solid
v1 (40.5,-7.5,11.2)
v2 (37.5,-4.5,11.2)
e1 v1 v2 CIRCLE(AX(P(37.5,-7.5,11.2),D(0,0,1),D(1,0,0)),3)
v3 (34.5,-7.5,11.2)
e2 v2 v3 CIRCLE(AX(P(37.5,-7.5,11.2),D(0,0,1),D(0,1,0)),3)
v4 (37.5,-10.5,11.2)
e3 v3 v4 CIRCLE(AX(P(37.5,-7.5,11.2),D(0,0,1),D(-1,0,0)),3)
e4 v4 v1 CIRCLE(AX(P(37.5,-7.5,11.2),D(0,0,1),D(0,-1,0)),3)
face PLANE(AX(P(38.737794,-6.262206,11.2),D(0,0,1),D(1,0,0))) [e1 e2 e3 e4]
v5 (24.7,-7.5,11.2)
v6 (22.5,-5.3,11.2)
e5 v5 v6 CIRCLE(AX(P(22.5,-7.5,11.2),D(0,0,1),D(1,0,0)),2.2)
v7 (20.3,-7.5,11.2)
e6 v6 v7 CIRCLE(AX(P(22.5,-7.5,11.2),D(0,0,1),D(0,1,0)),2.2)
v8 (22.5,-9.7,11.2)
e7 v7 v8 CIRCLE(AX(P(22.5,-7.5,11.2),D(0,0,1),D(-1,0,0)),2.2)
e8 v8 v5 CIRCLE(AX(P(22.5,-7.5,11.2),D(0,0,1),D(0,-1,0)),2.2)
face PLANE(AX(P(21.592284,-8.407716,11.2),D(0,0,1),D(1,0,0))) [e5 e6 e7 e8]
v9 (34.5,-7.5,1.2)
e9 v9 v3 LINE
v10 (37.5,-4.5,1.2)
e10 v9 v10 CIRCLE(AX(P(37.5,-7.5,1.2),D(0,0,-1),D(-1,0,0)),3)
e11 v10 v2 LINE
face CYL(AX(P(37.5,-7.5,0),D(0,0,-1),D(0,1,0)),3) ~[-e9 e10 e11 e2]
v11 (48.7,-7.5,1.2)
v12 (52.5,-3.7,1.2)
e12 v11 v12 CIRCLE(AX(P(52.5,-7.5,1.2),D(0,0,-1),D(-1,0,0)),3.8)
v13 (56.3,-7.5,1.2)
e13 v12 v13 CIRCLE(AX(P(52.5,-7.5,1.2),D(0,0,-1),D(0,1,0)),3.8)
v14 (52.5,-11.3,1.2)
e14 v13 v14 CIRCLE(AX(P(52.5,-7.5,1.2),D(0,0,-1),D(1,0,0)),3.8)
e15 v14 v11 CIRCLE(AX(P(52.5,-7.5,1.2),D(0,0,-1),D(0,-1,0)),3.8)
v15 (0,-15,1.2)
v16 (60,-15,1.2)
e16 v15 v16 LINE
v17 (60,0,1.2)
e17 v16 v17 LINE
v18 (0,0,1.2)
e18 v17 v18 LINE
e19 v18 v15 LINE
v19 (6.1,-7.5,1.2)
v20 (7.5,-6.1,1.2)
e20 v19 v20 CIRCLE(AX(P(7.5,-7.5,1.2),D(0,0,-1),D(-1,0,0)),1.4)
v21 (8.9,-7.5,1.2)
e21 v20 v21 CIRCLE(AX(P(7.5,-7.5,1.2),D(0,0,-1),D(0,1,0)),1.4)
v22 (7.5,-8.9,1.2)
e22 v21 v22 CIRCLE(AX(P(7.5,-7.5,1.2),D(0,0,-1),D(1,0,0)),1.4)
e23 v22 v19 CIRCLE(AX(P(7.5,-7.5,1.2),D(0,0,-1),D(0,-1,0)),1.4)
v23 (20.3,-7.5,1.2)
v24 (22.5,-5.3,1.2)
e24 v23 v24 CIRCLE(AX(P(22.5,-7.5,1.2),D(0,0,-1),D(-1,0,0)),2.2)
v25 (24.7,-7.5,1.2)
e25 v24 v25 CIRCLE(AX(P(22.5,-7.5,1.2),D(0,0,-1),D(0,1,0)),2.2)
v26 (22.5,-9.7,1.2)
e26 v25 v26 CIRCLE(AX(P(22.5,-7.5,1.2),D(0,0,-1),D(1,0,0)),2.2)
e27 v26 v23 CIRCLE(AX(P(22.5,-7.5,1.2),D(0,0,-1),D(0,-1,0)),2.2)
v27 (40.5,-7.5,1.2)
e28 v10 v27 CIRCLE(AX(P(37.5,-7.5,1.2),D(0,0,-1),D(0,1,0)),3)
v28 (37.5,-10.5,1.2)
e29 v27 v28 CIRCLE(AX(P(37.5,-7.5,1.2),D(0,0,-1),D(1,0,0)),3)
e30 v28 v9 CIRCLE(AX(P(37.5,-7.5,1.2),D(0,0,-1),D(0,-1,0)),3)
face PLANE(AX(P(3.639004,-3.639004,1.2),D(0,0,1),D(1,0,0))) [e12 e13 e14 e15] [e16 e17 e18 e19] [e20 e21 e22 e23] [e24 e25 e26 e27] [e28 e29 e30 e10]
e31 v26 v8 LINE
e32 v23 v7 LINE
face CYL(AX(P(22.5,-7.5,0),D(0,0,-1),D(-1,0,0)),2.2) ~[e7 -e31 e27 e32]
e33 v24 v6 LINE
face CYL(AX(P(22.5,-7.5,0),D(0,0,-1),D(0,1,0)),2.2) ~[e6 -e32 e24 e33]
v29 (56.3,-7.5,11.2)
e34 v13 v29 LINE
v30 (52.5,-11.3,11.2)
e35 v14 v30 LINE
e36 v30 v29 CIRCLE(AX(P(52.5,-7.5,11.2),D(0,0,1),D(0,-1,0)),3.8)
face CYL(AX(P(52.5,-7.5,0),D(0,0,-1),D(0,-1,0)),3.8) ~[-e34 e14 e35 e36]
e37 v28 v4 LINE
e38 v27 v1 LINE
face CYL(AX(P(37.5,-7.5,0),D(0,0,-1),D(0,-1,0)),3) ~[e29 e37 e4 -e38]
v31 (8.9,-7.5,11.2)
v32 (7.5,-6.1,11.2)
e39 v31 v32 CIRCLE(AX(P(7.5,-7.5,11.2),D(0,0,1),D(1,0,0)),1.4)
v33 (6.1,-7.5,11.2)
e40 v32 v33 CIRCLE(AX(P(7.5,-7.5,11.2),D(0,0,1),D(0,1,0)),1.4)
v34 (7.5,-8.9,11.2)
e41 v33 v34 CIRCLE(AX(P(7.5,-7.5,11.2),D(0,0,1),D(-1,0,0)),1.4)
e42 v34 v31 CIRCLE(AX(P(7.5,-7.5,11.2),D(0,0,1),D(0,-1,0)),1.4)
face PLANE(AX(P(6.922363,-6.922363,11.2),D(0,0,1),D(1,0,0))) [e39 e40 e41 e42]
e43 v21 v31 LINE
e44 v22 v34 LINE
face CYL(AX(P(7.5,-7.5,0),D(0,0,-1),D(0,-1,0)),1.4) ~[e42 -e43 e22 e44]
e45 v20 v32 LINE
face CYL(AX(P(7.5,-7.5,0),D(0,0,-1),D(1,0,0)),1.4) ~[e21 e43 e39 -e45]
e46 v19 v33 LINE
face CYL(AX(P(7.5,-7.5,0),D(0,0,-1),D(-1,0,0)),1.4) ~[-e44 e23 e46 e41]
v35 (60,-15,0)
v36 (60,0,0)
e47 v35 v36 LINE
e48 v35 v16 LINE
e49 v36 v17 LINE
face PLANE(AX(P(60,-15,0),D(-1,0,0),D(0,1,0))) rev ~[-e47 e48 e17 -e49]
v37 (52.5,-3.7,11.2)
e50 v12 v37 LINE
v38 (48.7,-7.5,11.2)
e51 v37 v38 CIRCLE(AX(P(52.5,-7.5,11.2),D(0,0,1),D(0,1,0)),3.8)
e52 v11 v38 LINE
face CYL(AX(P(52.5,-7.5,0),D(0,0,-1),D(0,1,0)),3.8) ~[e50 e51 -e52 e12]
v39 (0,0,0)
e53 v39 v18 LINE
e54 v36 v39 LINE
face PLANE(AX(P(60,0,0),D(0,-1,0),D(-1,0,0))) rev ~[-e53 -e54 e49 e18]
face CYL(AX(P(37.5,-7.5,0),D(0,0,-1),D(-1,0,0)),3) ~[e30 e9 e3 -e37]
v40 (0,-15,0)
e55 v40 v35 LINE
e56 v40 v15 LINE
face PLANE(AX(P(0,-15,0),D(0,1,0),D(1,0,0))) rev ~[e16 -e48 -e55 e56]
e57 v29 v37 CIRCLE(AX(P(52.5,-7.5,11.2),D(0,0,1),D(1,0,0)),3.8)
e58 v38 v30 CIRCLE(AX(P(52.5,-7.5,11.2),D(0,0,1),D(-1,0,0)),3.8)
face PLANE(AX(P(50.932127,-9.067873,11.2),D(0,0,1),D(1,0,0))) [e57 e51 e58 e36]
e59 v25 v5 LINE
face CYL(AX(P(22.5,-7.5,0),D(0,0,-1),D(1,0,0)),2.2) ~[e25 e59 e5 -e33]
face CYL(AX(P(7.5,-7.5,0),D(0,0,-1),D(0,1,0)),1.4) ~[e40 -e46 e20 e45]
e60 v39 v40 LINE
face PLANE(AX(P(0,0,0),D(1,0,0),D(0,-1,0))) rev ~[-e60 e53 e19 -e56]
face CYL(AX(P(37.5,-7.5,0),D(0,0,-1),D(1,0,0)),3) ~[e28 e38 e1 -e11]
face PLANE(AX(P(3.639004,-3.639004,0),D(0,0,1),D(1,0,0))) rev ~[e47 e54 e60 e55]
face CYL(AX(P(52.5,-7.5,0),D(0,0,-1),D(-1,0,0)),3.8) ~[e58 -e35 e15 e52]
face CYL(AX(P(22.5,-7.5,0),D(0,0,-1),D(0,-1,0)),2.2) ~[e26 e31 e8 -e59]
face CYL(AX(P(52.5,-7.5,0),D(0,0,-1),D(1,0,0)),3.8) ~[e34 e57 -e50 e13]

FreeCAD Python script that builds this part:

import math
import FreeCAD as App
import Part
import Sketcher
from FreeCAD import Vector
Q = App.Units.Quantity


def add_polygon(sketch, points):
    """Adds a closed chain of lines whose ends are joined by coincident constraints."""
    first, n = sketch.GeometryCount, len(points)
    for a, b in zip(points, points[1:] + points[:1]):
        sketch.addGeometry(Part.LineSegment(App.Vector(*a, 0), App.Vector(*b, 0)), False)
    for i in range(n):
        sketch.addConstraint(Sketcher.Constraint("Coincident", first + i, 2, first + (i + 1) % n, 1))

doc = App.newDocument("Part")
body = doc.addObject("PartDesign::Body", "Body")

sketch1 = doc.addObject("Sketcher::SketchObject", "Sketch")
body.addObject(sketch1)
sketch1.AttachmentSupport = (doc.XY_Plane, [""])
sketch1.MapMode = "FlatFace"
add_polygon(sketch1, [(0, 0), (0, -15), (60, -15), (60, 0)])
sketch1.addGeometry(Part.ArcOfCircle(Part.Circle(Vector(52.5, -7.5, 0), Vector(0, 0, 1), 3.8), math.radians(180), math.radians(270)), False)
sketch1.addGeometry(Part.ArcOfCircle(Part.Circle(Vector(52.5, -7.5, 0), Vector(0, 0, 1), 3.8), math.radians(90), math.radians(180)), False)
sketch1.addGeometry(Part.ArcOfCircle(Part.Circle(Vector(52.5, -7.5, 0), Vector(0, 0, 1), 3.8), math.radians(0), math.radians(90)), False)
sketch1.addGeometry(Part.ArcOfCircle(Part.Circle(Vector(52.5, -7.5, 0), Vector(0, 0, 1), 3.8), math.radians(-90), math.radians(0)), False)
sketch1.addGeometry(Part.ArcOfCircle(Part.Circle(Vector(37.5, -7.5, 0), Vector(0, 0, 1), 3), math.radians(-90), math.radians(0)), False)
sketch1.addGeometry(Part.ArcOfCircle(Part.Circle(Vector(37.5, -7.5, 0), Vector(0, 0, 1), 3), math.radians(180), math.radians(270)), False)
sketch1.addGeometry(Part.ArcOfCircle(Part.Circle(Vector(37.5, -7.5, 0), Vector(0, 0, 1), 3), math.radians(90), math.radians(180)), False)
sketch1.addGeometry(Part.ArcOfCircle(Part.Circle(Vector(37.5, -7.5, 0), Vector(0, 0, 1), 3), math.radians(0), math.radians(90)), False)
sketch1.addGeometry(Part.ArcOfCircle(Part.Circle(Vector(22.5, -7.5, 0), Vector(0, 0, 1), 2.2), math.radians(180), math.radians(270)), False)
sketch1.addGeometry(Part.ArcOfCircle(Part.Circle(Vector(22.5, -7.5, 0), Vector(0, 0, 1), 2.2), math.radians(90), math.radians(180)), False)
sketch1.addGeometry(Part.ArcOfCircle(Part.Circle(Vector(22.5, -7.5, 0), Vector(0, 0, 1), 2.2), math.radians(0), math.radians(90)), False)
sketch1.addGeometry(Part.ArcOfCircle(Part.Circle(Vector(22.5, -7.5, 0), Vector(0, 0, 1), 2.2), math.radians(-90), math.radians(0)), False)
sketch1.addGeometry(Part.ArcOfCircle(Part.Circle(Vector(7.5, -7.5, 0), Vector(0, 0, 1), 1.4), math.radians(-90), math.radians(0)), False)
sketch1.addGeometry(Part.ArcOfCircle(Part.Circle(Vector(7.5, -7.5, 0), Vector(0, 0, 1), 1.4), math.radians(180), math.radians(270)), False)
sketch1.addGeometry(Part.ArcOfCircle(Part.Circle(Vector(7.5, -7.5, 0), Vector(0, 0, 1), 1.4), math.radians(90), math.radians(180)), False)
sketch1.addGeometry(Part.ArcOfCircle(Part.Circle(Vector(7.5, -7.5, 0), Vector(0, 0, 1), 1.4), math.radians(0), math.radians(90)), False)
sketch1.addConstraint([
    Sketcher.Constraint("Tangent", 4, 1, 5, 2),
    Sketcher.Constraint("Tangent", 5, 1, 6, 2),
    Sketcher.Constraint("Tangent", 6, 1, 7, 2),
    Sketcher.Constraint("Tangent", 7, 1, 4, 2),
    Sketcher.Constraint("Tangent", 8, 1, 9, 2),
    Sketcher.Constraint("Tangent", 9, 1, 10, 2),
    Sketcher.Constraint("Tangent", 10, 1, 11, 2),
    Sketcher.Constraint("Tangent", 11, 1, 8, 2),
    Sketcher.Constraint("Tangent", 12, 1, 13, 2),
    Sketcher.Constraint("Tangent", 13, 1, 14, 2),
    Sketcher.Constraint("Tangent", 14, 1, 15, 2),
    Sketcher.Constraint("Tangent", 15, 1, 12, 2),
    Sketcher.Constraint("Tangent", 16, 1, 17, 2),
    Sketcher.Constraint("Tangent", 17, 1, 18, 2),
    Sketcher.Constraint("Tangent", 18, 1, 19, 2),
    Sketcher.Constraint("Tangent", 19, 1, 16, 2),
    Sketcher.Constraint("Vertical", 0),
    Sketcher.Constraint("Horizontal", 1),
    Sketcher.Constraint("Vertical", 2),
    Sketcher.Constraint("Horizontal", 3),
    Sketcher.Constraint("Coincident", 3, 2, -1, 1),
    Sketcher.Constraint("Equal", 4, 5),
    Sketcher.Constraint("Equal", 8, 9),
    Sketcher.Constraint("Equal", 12, 13),
    Sketcher.Constraint("Equal", 16, 17),
    Sketcher.Constraint("Horizontal", 7, 3, 8, 3),
    Sketcher.Constraint("Horizontal", 11, 3, 12, 3),
    Sketcher.Constraint("Horizontal", 15, 3, 16, 3),
    Sketcher.Constraint("Horizontal", 19, 3, 4, 1),
    Sketcher.Constraint("Horizontal", 4, 1, 6, 1),
    Sketcher.Constraint("Horizontal", 6, 1, 9, 1),
    Sketcher.Constraint("Horizontal", 9, 1, 11, 1),
    Sketcher.Constraint("Horizontal", 11, 1, 12, 1),
    Sketcher.Constraint("Horizontal", 12, 1, 14, 1),
    Sketcher.Constraint("Horizontal", 14, 1, 17, 1),
    Sketcher.Constraint("Horizontal", 17, 1, 19, 1),
    Sketcher.Constraint("Vertical", 7, 3, 5, 1),
    Sketcher.Constraint("Vertical", 5, 1, 7, 1),
    Sketcher.Constraint("Vertical", 11, 3, 8, 1),
    Sketcher.Constraint("Vertical", 8, 1, 10, 1),
    Sketcher.Constraint("Vertical", 15, 3, 13, 1),
    Sketcher.Constraint("Vertical", 13, 1, 15, 1),
    Sketcher.Constraint("Vertical", 19, 3, 16, 1),
    Sketcher.Constraint("Vertical", 16, 1, 18, 1),
    Sketcher.Constraint("Radius", 8, Q("3 mm")),
    Sketcher.Constraint("Radius", 4, Q("3.8 mm")),
    Sketcher.Constraint("Radius", 12, Q("2.2 mm")),
    Sketcher.Constraint("Radius", 16, Q("1.4 mm")),
    Sketcher.Constraint("DistanceX", 1, 1, 1, 2, Q("60 mm")),
    Sketcher.Constraint("DistanceY", 0, 2, 0, 1, Q("15 mm")),
    Sketcher.Constraint("DistanceX", 8, 3, 4, 3, Q("15 mm")),
    Sketcher.Constraint("DistanceX", 12, 3, 8, 3, Q("15 mm")),
    Sketcher.Constraint("DistanceX", 16, 3, 12, 3, Q("15 mm")),
    Sketcher.Constraint("DistanceX", -1, 1, 4, 3, Q("52.5 mm")),
    Sketcher.Constraint("DistanceY", 4, 3, -1, 1, Q("7.5 mm")),
])
pad1 = doc.addObject("PartDesign::Pad", "Pad")
body.addObject(pad1)
pad1.Profile = sketch1
pad1.Length = 1.2

sketch2 = doc.addObject("Sketcher::SketchObject", "Sketch001")
body.addObject(sketch2)
sketch2.AttachmentSupport = (doc.XY_Plane, [""])
sketch2.MapMode = "FlatFace"
sketch2.addGeometry([
    Part.ArcOfCircle(Part.Circle(Vector(7.5, -7.5, 0), Vector(0, 0, 1), 1.4), math.radians(90), math.radians(180)),
    Part.ArcOfCircle(Part.Circle(Vector(7.5, -7.5, 0), Vector(0, 0, 1), 1.4), math.radians(180), math.radians(270)),
    Part.ArcOfCircle(Part.Circle(Vector(7.5, -7.5, 0), Vector(0, 0, 1), 1.4), math.radians(-90), math.radians(0)),
    Part.ArcOfCircle(Part.Circle(Vector(7.5, -7.5, 0), Vector(0, 0, 1), 1.4), math.radians(0), math.radians(90)),
    Part.ArcOfCircle(Part.Circle(Vector(22.5, -7.5, 0), Vector(0, 0, 1), 2.2), math.radians(0), math.radians(90)),
    Part.ArcOfCircle(Part.Circle(Vector(22.5, -7.5, 0), Vector(0, 0, 1), 2.2), math.radians(90), math.radians(180)),
    Part.ArcOfCircle(Part.Circle(Vector(22.5, -7.5, 0), Vector(0, 0, 1), 2.2), math.radians(180), math.radians(270)),
    Part.ArcOfCircle(Part.Circle(Vector(22.5, -7.5, 0), Vector(0, 0, 1), 2.2), math.radians(-90), math.radians(0)),
    Part.ArcOfCircle(Part.Circle(Vector(37.5, -7.5, 0), Vector(0, 0, 1), 3), math.radians(0), math.radians(90)),
    Part.ArcOfCircle(Part.Circle(Vector(37.5, -7.5, 0), Vector(0, 0, 1), 3), math.radians(90), math.radians(180)),
    Part.ArcOfCircle(Part.Circle(Vector(37.5, -7.5, 0), Vector(0, 0, 1), 3), math.radians(180), math.radians(270)),
    Part.ArcOfCircle(Part.Circle(Vector(37.5, -7.5, 0), Vector(0, 0, 1), 3), math.radians(-90), math.radians(0)),
    Part.ArcOfCircle(Part.Circle(Vector(52.5, -7.5, 0), Vector(0, 0, 1), 3.8), math.radians(0), math.radians(90)),
    Part.ArcOfCircle(Part.Circle(Vector(52.5, -7.5, 0), Vector(0, 0, 1), 3.8), math.radians(90), math.radians(180)),
    Part.ArcOfCircle(Part.Circle(Vector(52.5, -7.5, 0), Vector(0, 0, 1), 3.8), math.radians(180), math.radians(270)),
    Part.ArcOfCircle(Part.Circle(Vector(52.5, -7.5, 0), Vector(0, 0, 1), 3.8), math.radians(-90), math.radians(0)),
], False)
sketch2.addConstraint([
    Sketcher.Constraint("Tangent", 0, 2, 1, 1),
    Sketcher.Constraint("Tangent", 1, 2, 2, 1),
    Sketcher.Constraint("Tangent", 2, 2, 3, 1),
    Sketcher.Constraint("Tangent", 3, 2, 0, 1),
    Sketcher.Constraint("Tangent", 4, 2, 5, 1),
    Sketcher.Constraint("Tangent", 5, 2, 6, 1),
    Sketcher.Constraint("Tangent", 6, 2, 7, 1),
    Sketcher.Constraint("Tangent", 7, 2, 4, 1),
    Sketcher.Constraint("Tangent", 8, 2, 9, 1),
    Sketcher.Constraint("Tangent", 9, 2, 10, 1),
    Sketcher.Constraint("Tangent", 10, 2, 11, 1),
    Sketcher.Constraint("Tangent", 11, 2, 8, 1),
    Sketcher.Constraint("Tangent", 12, 2, 13, 1),
    Sketcher.Constraint("Tangent", 13, 2, 14, 1),
    Sketcher.Constraint("Tangent", 14, 2, 15, 1),
    Sketcher.Constraint("Tangent", 15, 2, 12, 1),
    Sketcher.Constraint("Equal", 0, 1),
    Sketcher.Constraint("Equal", 4, 5),
    Sketcher.Constraint("Equal", 8, 9),
    Sketcher.Constraint("Equal", 12, 13),
    Sketcher.Constraint("Horizontal", 3, 3, 4, 3),
    Sketcher.Constraint("Horizontal", 7, 3, 8, 3),
    Sketcher.Constraint("Horizontal", 11, 3, 12, 3),
    Sketcher.Constraint("Horizontal", 15, 3, 0, 2),
    Sketcher.Constraint("Horizontal", 0, 2, 2, 2),
    Sketcher.Constraint("Horizontal", 2, 2, 5, 2),
    Sketcher.Constraint("Horizontal", 5, 2, 7, 2),
    Sketcher.Constraint("Horizontal", 7, 2, 9, 2),
    Sketcher.Constraint("Horizontal", 9, 2, 11, 2),
    Sketcher.Constraint("Horizontal", 11, 2, 13, 2),
    Sketcher.Constraint("Horizontal", 13, 2, 15, 2),
    Sketcher.Constraint("Vertical", 3, 3, 1, 2),
    Sketcher.Constraint("Vertical", 1, 2, 3, 2),
    Sketcher.Constraint("Vertical", 7, 3, 4, 2),
    Sketcher.Constraint("Vertical", 4, 2, 6, 2),
    Sketcher.Constraint("Vertical", 11, 3, 8, 2),
    Sketcher.Constraint("Vertical", 8, 2, 10, 2),
    Sketcher.Constraint("Vertical", 15, 3, 12, 2),
    Sketcher.Constraint("Vertical", 12, 2, 14, 2),
    Sketcher.Constraint("Radius", 8, Q("3 mm")),
    Sketcher.Constraint("Radius", 0, Q("1.4 mm")),
    Sketcher.Constraint("Radius", 4, Q("2.2 mm")),
    Sketcher.Constraint("Radius", 12, Q("3.8 mm")),
    Sketcher.Constraint("DistanceX", 0, 3, 4, 3, Q("15 mm")),
    Sketcher.Constraint("DistanceX", 4, 3, 8, 3, Q("15 mm")),
    Sketcher.Constraint("DistanceX", 8, 3, 12, 3, Q("15 mm")),
    Sketcher.Constraint("DistanceX", -1, 1, 0, 3, Q("7.5 mm")),
    Sketcher.Constraint("DistanceY", 0, 3, -1, 1, Q("7.5 mm")),
])
pad2 = doc.addObject("PartDesign::Pad", "Pad001")
body.addObject(pad2)
pad2.Profile = sketch2
pad2.Length = 11.2

doc.recompute()
